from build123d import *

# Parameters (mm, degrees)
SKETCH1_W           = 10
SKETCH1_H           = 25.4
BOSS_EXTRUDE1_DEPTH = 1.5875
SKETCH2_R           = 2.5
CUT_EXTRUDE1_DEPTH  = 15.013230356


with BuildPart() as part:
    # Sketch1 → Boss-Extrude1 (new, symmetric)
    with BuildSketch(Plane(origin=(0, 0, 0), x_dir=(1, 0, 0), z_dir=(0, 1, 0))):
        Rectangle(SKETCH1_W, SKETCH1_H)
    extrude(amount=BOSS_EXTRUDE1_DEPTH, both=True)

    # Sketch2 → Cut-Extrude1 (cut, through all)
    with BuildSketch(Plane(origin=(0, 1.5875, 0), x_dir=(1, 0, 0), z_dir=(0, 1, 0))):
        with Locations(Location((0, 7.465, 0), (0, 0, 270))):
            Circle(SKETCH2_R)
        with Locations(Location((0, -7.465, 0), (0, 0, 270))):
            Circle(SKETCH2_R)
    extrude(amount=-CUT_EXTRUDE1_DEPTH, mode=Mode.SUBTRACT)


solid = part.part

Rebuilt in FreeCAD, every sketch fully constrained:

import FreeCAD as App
import Part
import Sketcher

V = App.Vector
Q = App.Units.Quantity


def add_polygon(sketch, points):
    """Adds a closed chain of lines whose ends are joined by coincident constraints."""
    first, n = sketch.GeometryCount, len(points)
    for a, b in zip(points, points[1:] + points[:1]):
        sketch.addGeometry(Part.LineSegment(App.Vector(*a, 0), App.Vector(*b, 0)), False)
    for i in range(n):
        sketch.addConstraint(Sketcher.Constraint("Coincident", first + i, 2, first + (i + 1) % n, 1))

doc = App.newDocument("Part")
body = doc.addObject("PartDesign::Body", "Body")

# Sketch on XZ plane
sketch1 = body.newObject("Sketcher::SketchObject", "Sketch")
sketch1.AttachmentSupport = (doc.getObject("XZ_Plane"), [""])
sketch1.MapMode = "FlatFace"
add_polygon(sketch1, [(-5, -13), (-5, 13), (5, 13), (5, -13)])  # lines 0-3
sketch1.addConstraint([
    Sketcher.Constraint("Vertical", 0),
    Sketcher.Constraint("Horizontal", 1),
    Sketcher.Constraint("Vertical", 2),
    Sketcher.Constraint("Horizontal", 3),
    Sketcher.Constraint("Symmetric", 0, 2, 2, 2, -1, 1),
    Sketcher.Constraint("DistanceX", 1, 1, 1, 2, Q("10 mm")),
    Sketcher.Constraint("DistanceY", 0, 1, 0, 2, Q("25.4 mm")),
])
pad1 = body.newObject("PartDesign::Pad", "Pad")
pad1.Profile = sketch1
pad1.Length = 3.175
pad1.Midplane = True

# Sketch on XZ plane
sketch2 = body.newObject("Sketcher::SketchObject", "Sketch001")
sketch2.AttachmentSupport = (doc.getObject("XZ_Plane"), [""])
sketch2.MapMode = "FlatFace"
sketch2.AttachmentOffset = App.Placement(V(0, 0, -1.5875), App.Rotation())
sketch2.addGeometry([
    Part.Circle(V(0, -7.5, 0), V(0, 0, 1), 2.5),
    Part.Circle(V(0, 7.5, 0), V(0, 0, 1), 2.5),
], False)
sketch2.addConstraint([
    Sketcher.Constraint("Equal", 0, 1),
    Sketcher.Constraint("Symmetric", 0, 3, 1, 3, -1, 1),
    Sketcher.Constraint("PointOnObject", 0, 3, -2),
    Sketcher.Constraint("Diameter", 0, Q("5 mm")),
    Sketcher.Constraint("DistanceY", 0, 3, 1, 3, Q("14.93 mm")),
])
pocket1 = body.newObject("PartDesign::Pocket", "Pocket")
pocket1.Profile = sketch2
pocket1.Type = "ThroughAll"
pocket1.Reversed = True

doc.recompute()
